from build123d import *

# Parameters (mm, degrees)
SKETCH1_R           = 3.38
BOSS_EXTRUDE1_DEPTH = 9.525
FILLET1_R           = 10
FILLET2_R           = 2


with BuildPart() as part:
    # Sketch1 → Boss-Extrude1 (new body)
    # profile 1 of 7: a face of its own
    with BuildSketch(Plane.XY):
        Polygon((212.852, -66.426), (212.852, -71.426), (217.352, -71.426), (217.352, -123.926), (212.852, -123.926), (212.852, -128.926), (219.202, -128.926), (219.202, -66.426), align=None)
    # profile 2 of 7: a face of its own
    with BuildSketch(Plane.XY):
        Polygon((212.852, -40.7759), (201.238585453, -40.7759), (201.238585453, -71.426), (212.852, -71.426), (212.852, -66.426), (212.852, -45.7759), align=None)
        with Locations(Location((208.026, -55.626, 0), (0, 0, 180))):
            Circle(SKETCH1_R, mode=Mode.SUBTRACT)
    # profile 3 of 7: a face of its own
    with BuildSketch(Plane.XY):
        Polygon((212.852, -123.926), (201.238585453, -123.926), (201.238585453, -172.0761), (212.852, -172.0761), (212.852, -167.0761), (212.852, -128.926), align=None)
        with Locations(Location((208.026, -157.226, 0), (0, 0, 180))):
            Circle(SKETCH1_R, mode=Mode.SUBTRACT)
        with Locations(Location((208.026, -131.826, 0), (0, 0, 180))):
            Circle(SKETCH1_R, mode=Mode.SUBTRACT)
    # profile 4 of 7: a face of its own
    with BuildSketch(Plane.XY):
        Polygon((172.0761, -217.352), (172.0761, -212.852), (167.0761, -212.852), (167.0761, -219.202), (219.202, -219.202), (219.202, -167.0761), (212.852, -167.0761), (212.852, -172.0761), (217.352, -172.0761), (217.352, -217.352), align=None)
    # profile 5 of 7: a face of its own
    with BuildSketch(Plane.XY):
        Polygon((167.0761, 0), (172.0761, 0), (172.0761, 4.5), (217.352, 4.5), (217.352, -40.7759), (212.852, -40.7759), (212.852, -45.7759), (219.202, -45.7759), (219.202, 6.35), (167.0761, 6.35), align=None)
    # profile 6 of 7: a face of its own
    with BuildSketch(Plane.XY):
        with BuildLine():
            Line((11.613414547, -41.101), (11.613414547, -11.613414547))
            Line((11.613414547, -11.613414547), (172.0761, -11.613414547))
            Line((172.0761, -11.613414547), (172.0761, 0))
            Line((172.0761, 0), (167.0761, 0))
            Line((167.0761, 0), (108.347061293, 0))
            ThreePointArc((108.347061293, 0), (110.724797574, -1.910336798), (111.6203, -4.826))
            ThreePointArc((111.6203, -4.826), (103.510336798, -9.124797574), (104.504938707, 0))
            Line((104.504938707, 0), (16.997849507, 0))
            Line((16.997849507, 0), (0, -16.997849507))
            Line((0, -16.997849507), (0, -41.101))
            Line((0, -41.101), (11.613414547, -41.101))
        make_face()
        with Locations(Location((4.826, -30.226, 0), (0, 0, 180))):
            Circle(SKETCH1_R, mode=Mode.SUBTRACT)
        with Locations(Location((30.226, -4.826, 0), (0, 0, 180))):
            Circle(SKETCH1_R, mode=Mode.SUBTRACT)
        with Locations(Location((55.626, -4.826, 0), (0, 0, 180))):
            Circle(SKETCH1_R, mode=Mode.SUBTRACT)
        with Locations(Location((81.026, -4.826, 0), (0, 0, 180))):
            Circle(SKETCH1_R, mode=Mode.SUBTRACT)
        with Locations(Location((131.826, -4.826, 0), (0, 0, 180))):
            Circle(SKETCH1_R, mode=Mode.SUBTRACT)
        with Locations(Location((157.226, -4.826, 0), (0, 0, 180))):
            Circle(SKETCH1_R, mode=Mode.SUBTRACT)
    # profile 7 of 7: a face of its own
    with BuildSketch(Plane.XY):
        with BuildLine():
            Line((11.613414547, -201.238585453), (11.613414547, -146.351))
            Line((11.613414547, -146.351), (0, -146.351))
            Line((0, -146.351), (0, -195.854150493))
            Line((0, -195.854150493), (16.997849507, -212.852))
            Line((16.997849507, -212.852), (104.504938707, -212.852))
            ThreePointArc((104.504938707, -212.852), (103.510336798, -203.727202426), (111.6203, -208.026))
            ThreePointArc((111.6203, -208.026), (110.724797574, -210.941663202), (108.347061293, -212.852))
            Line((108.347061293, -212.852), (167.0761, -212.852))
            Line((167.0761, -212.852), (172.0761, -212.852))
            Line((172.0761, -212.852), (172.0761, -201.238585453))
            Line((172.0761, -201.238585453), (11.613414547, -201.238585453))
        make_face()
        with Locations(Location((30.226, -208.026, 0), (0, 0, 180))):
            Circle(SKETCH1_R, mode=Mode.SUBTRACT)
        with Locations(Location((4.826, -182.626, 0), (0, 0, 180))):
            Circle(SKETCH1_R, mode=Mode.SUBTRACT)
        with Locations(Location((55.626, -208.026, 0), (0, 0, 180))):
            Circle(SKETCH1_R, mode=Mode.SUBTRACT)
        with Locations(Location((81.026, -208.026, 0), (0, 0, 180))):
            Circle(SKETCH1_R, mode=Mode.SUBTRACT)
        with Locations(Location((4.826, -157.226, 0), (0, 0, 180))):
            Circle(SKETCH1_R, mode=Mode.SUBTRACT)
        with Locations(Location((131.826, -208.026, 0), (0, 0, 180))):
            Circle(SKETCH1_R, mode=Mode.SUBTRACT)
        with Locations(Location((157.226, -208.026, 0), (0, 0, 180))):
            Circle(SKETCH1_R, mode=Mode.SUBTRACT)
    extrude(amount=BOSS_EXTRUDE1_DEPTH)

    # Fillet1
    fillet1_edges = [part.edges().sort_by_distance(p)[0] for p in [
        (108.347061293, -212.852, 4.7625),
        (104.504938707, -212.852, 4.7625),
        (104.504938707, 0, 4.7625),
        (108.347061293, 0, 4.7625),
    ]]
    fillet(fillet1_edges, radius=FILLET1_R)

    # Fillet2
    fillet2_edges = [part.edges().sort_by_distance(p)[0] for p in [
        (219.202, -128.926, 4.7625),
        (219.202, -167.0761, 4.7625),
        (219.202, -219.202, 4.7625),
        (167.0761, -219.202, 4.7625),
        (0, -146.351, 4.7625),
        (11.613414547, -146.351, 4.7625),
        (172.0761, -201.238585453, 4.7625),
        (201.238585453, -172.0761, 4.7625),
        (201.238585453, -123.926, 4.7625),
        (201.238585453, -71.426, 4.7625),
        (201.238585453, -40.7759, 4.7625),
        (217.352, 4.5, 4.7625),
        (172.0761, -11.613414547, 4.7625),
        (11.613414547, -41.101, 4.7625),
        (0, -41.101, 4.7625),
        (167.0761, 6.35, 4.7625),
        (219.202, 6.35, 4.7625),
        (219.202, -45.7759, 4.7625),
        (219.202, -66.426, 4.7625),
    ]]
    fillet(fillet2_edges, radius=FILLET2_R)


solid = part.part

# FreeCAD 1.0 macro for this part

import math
import FreeCAD as App
import Part
import Sketcher

V = App.Vector


def edges_at(feature, points):
    """Names of the edges that pass closest to the given points."""
    edges = feature.Shape.Edges
    near = lambda p: min(range(len(edges)), key=lambda i: edges[i].distToShape(Part.Vertex(*p))[0])
    return sorted({f"Edge{near(p) + 1}" for p in points})

doc = App.newDocument("Part")
body = doc.addObject("PartDesign::Body", "Body")

# Sketch on XY plane
sketch1 = body.newObject("Sketcher::SketchObject", "Sketch")
sketch1.AttachmentSupport = (doc.getObject("XY_Plane"), [""])
sketch1.MapMode = "FlatFace"
sketch1.addGeometry([
    Part.LineSegment(V(217.4, -71.4, 0), V(217.4, -123.9, 0)),  # 0
    Part.LineSegment(V(217.4, -123.9, 0), V(201.2, -123.9, 0)),  # 1
    Part.LineSegment(V(201.2, -123.9, 0), V(201.2, -172.1, 0)),  # 2
    Part.LineSegment(V(201.2, -172.1, 0), V(217.4, -172.1, 0)),  # 3
    Part.LineSegment(V(217.4, -172.1, 0), V(217.4, -217.4, 0)),  # 4
    Part.LineSegment(V(217.4, -217.4, 0), V(172.1, -217.4, 0)),  # 5
    Part.LineSegment(V(172.1, -217.4, 0), V(172.1, -201.2, 0)),  # 6
    Part.LineSegment(V(172.1, -201.2, 0), V(11.6, -201.2, 0)),  # 7
    Part.LineSegment(V(11.6, -201.2, 0), V(11.6, -146.4, 0)),  # 8
    Part.LineSegment(V(11.6, -146.4, 0), V(0, -146.4, 0)),  # 9
    Part.LineSegment(V(0, -146.4, 0), V(0, -195.9, 0)),  # 10
    Part.LineSegment(V(0, -195.9, 0), V(17, -212.9, 0)),  # 11
    Part.LineSegment(V(17, -212.9, 0), V(104.5, -212.9, 0)),  # 12
    Part.ArcOfCircle(Part.Circle(V(106.4, -208, 0), V(0, 0, 1), 5.2), math.radians(0), math.radians(248)),  # 13
    Part.ArcOfCircle(Part.Circle(V(106.4, -208, 0), V(0, 0, 1), 5.2), math.radians(-68), math.radians(0)),  # 14
    Part.LineSegment(V(108.3, -212.9, 0), V(167.1, -212.9, 0)),  # 15
    Part.LineSegment(V(167.1, -212.9, 0), V(167.1, -219.2, 0)),  # 16
    Part.LineSegment(V(167.1, -219.2, 0), V(219.2, -219.2, 0)),  # 17
    Part.LineSegment(V(219.2, -219.2, 0), V(219.2, -167.1, 0)),  # 18
    Part.LineSegment(V(219.2, -167.1, 0), V(212.9, -167.1, 0)),  # 19
    Part.LineSegment(V(212.9, -167.1, 0), V(212.9, -128.9, 0)),  # 20
    Part.LineSegment(V(212.9, -128.9, 0), V(219.2, -128.9, 0)),  # 21
    Part.LineSegment(V(219.2, -128.9, 0), V(219.2, -66.4, 0)),  # 22
    Part.LineSegment(V(219.2, -66.4, 0), V(212.9, -66.4, 0)),  # 23
    Part.LineSegment(V(212.9, -66.4, 0), V(212.9, -45.8, 0)),  # 24
    Part.LineSegment(V(212.9, -45.8, 0), V(219.2, -45.8, 0)),  # 25
    Part.LineSegment(V(219.2, -45.8, 0), V(219.2, 6.3, 0)),  # 26
    Part.LineSegment(V(219.2, 6.3, 0), V(167.1, 6.3, 0)),  # 27
    Part.LineSegment(V(167.1, 6.3, 0), V(167.1, 0, 0)),  # 28
    Part.LineSegment(V(167.1, 0, 0), V(108.3, 0, 0)),  # 29
    Part.ArcOfCircle(Part.Circle(V(106.4, -4.8, 0), V(0, 0, 1), 5.2), math.radians(0), math.radians(68)),  # 30
    Part.ArcOfCircle(Part.Circle(V(106.4, -4.8, 0), V(0, 0, 1), 5.2), math.radians(112), math.radians(360)),  # 31
    Part.LineSegment(V(104.5, 0, 0), V(17, 0, 0)),  # 32
    Part.LineSegment(V(17, 0, 0), V(0, -17, 0)),  # 33
    Part.LineSegment(V(0, -17, 0), V(0, -41.1, 0)),  # 34
    Part.LineSegment(V(0, -41.1, 0), V(11.6, -41.1, 0)),  # 35
    Part.LineSegment(V(11.6, -41.1, 0), V(11.6, -11.6, 0)),  # 36
    Part.LineSegment(V(11.6, -11.6, 0), V(172.1, -11.6, 0)),  # 37
    Part.LineSegment(V(172.1, -11.6, 0), V(172.1, 4.5, 0)),  # 38
    Part.LineSegment(V(172.1, 4.5, 0), V(217.4, 4.5, 0)),  # 39
    Part.LineSegment(V(217.4, 4.5, 0), V(217.4, -40.8, 0)),  # 40
    Part.LineSegment(V(217.4, -40.8, 0), V(201.2, -40.8, 0)),  # 41
    Part.LineSegment(V(201.2, -40.8, 0), V(201.2, -71.4, 0)),  # 42
    Part.LineSegment(V(201.2, -71.4, 0), V(217.4, -71.4, 0)),  # 43
    Part.Circle(V(208, -55.6, 0), V(0, 0, 1), 3.4),  # 44
    Part.Circle(V(208, -131.8, 0), V(0, 0, 1), 3.4),  # 45
    Part.Circle(V(208, -157.2, 0), V(0, 0, 1), 3.4),  # 46
    Part.Circle(V(157.2, -4.8, 0), V(0, 0, 1), 3.4),  # 47
    Part.Circle(V(4.8, -30.2, 0), V(0, 0, 1), 3.4),  # 48
    Part.Circle(V(30.2, -4.8, 0), V(0, 0, 1), 3.4),  # 49
    Part.Circle(V(55.6, -4.8, 0), V(0, 0, 1), 3.4),  # 50
    Part.Circle(V(81, -4.8, 0), V(0, 0, 1), 3.4),  # 51
    Part.Circle(V(131.8, -4.8, 0), V(0, 0, 1), 3.4),  # 52
    Part.Circle(V(4.8, -157.2, 0), V(0, 0, 1), 3.4),  # 53
    Part.Circle(V(30.2, -208, 0), V(0, 0, 1), 3.4),  # 54
    Part.Circle(V(55.6, -208, 0), V(0, 0, 1), 3.4),  # 55
    Part.Circle(V(81, -208, 0), V(0, 0, 1), 3.4),  # 56
    Part.Circle(V(131.8, -208, 0), V(0, 0, 1), 3.4),  # 57
    Part.Circle(V(157.2, -208, 0), V(0, 0, 1), 3.4),  # 58
    Part.Circle(V(4.8, -182.6, 0), V(0, 0, 1), 3.4),  # 59
], False)
sketch1.addConstraint([
    Sketcher.Constraint("Coincident", 0, 2, 1, 1),
    Sketcher.Constraint("Coincident", 1, 2, 2, 1),
    Sketcher.Constraint("Coincident", 2, 2, 3, 1),
    Sketcher.Constraint("Coincident", 3, 2, 4, 1),
    Sketcher.Constraint("Coincident", 4, 2, 5, 1),
    Sketcher.Constraint("Coincident", 5, 2, 6, 1),
    Sketcher.Constraint("Coincident", 6, 2, 7, 1),
    Sketcher.Constraint("Coincident", 7, 2, 8, 1),
    Sketcher.Constraint("Coincident", 8, 2, 9, 1),
    Sketcher.Constraint("Coincident", 9, 2, 10, 1),
    Sketcher.Constraint("Coincident", 10, 2, 11, 1),
    Sketcher.Constraint("Coincident", 11, 2, 12, 1),
    Sketcher.Constraint("Coincident", 12, 2, 13, 2),
    Sketcher.Constraint("Tangent", 13, 1, 14, 2),
    Sketcher.Constraint("Coincident", 14, 1, 15, 1),
    Sketcher.Constraint("Coincident", 15, 2, 16, 1),
    Sketcher.Constraint("Coincident", 16, 2, 17, 1),
    Sketcher.Constraint("Coincident", 17, 2, 18, 1),
    Sketcher.Constraint("Coincident", 18, 2, 19, 1),
    Sketcher.Constraint("Coincident", 19, 2, 20, 1),
    Sketcher.Constraint("Coincident", 20, 2, 21, 1),
    Sketcher.Constraint("Coincident", 21, 2, 22, 1),
    Sketcher.Constraint("Coincident", 22, 2, 23, 1),
    Sketcher.Constraint("Coincident", 23, 2, 24, 1),
    Sketcher.Constraint("Coincident", 24, 2, 25, 1),
    Sketcher.Constraint("Coincident", 25, 2, 26, 1),
    Sketcher.Constraint("Coincident", 26, 2, 27, 1),
    Sketcher.Constraint("Coincident", 27, 2, 28, 1),
    Sketcher.Constraint("Coincident", 28, 2, 29, 1),
    Sketcher.Constraint("Coincident", 29, 2, 30, 2),
    Sketcher.Constraint("Tangent", 30, 1, 31, 2),
    Sketcher.Constraint("Coincident", 31, 1, 32, 1),
    Sketcher.Constraint("Coincident", 32, 2, 33, 1),
    Sketcher.Constraint("Coincident", 33, 2, 34, 1),
    Sketcher.Constraint("Coincident", 34, 2, 35, 1),
    Sketcher.Constraint("Coincident", 35, 2, 36, 1),
    Sketcher.Constraint("Coincident", 36, 2, 37, 1),
    Sketcher.Constraint("Coincident", 37, 2, 38, 1),
    Sketcher.Constraint("Coincident", 38, 2, 39, 1),
    Sketcher.Constraint("Coincident", 39, 2, 40, 1),
    Sketcher.Constraint("Coincident", 40, 2, 41, 1),
    Sketcher.Constraint("Coincident", 41, 2, 42, 1),
    Sketcher.Constraint("Coincident", 42, 2, 43, 1),
    Sketcher.Constraint("Coincident", 43, 2, 0, 1),
    Sketcher.Constraint("Vertical", 0),
    Sketcher.Constraint("Horizontal", 1),
    Sketcher.Constraint("Vertical", 2),
    Sketcher.Constraint("Horizontal", 3),
    Sketcher.Constraint("Vertical", 4),
    Sketcher.Constraint("Horizontal", 5),
    Sketcher.Constraint("Vertical", 6),
    Sketcher.Constraint("Horizontal", 7),
    Sketcher.Constraint("Vertical", 8),
    Sketcher.Constraint("Horizontal", 9),
    Sketcher.Constraint("Vertical", 10),
    Sketcher.Constraint("Horizontal", 12),
    Sketcher.Constraint("Horizontal", 15),
    Sketcher.Constraint("Vertical", 16),
    Sketcher.Constraint("Horizontal", 17),
    Sketcher.Constraint("Vertical", 18),
    Sketcher.Constraint("Horizontal", 19),
    Sketcher.Constraint("Vertical", 20),
    Sketcher.Constraint("Horizontal", 21),
    Sketcher.Constraint("Vertical", 22),
    Sketcher.Constraint("Horizontal", 23),
    Sketcher.Constraint("Vertical", 24),
    Sketcher.Constraint("Horizontal", 25),
    Sketcher.Constraint("Vertical", 26),
    Sketcher.Constraint("Horizontal", 27),
    Sketcher.Constraint("Vertical", 28),
    Sketcher.Constraint("Horizontal", 29),
    Sketcher.Constraint("Horizontal", 32),
    Sketcher.Constraint("Vertical", 34),
    Sketcher.Constraint("Horizontal", 35),
    Sketcher.Constraint("Vertical", 36),
    Sketcher.Constraint("Horizontal", 37),
    Sketcher.Constraint("Vertical", 38),
    Sketcher.Constraint("Horizontal", 39),
    Sketcher.Constraint("Vertical", 40),
    Sketcher.Constraint("Horizontal", 41),
    Sketcher.Constraint("Vertical", 42),
    Sketcher.Constraint("Horizontal", 43),
    Sketcher.Constraint("Equal", 13, 14),
    Sketcher.Constraint("Equal", 14, 30),
    Sketcher.Constraint("Equal", 30, 31),
    Sketcher.Constraint("Equal", 44, 45),
    Sketcher.Constraint("Equal", 45, 46),
    Sketcher.Constraint("Equal", 46, 47),
    Sketcher.Constraint("Equal", 47, 48),
    Sketcher.Constraint("Equal", 48, 49),
    Sketcher.Constraint("Equal", 49, 50),
    Sketcher.Constraint("Equal", 50, 51),
    Sketcher.Constraint("Equal", 51, 52),
    Sketcher.Constraint("Equal", 52, 53),
    Sketcher.Constraint("Equal", 53, 54),
    Sketcher.Constraint("Equal", 54, 55),
    Sketcher.Constraint("Equal", 55, 56),
    Sketcher.Constraint("Equal", 56, 57),
    Sketcher.Constraint("Equal", 57, 58),
    Sketcher.Constraint("Equal", 58, 59),
    Sketcher.Constraint("PointOnObject", 9, 2, -2),
    Sketcher.Constraint("PointOnObject", 28, 2, -1),
    Sketcher.Constraint("PointOnObject", 31, 1, -1),
    Sketcher.Constraint("PointOnObject", 33, 2, -2),
    Sketcher.Constraint("Perpendicular", 11, 33),
    Sketcher.Constraint("Horizontal", 31, 3, 47, 3),
    Sketcher.Constraint("Horizontal", 47, 3, 49, 3),
    Sketcher.Constraint("Horizontal", 49, 3, 50, 3),
    Sketcher.Constraint("Horizontal", 50, 3, 51, 3),
    Sketcher.Constraint("Horizontal", 51, 3, 52, 3),
    Sketcher.Constraint("Horizontal", 46, 3, 53, 3),
    Sketcher.Constraint("Horizontal", 14, 3, 54, 3),
    Sketcher.Constraint("Horizontal", 54, 3, 55, 3),
    Sketcher.Constraint("Horizontal", 55, 3, 56, 3),
    Sketcher.Constraint("Horizontal", 56, 3, 57, 3),
    Sketcher.Constraint("Horizontal", 57, 3, 58, 3),
    Sketcher.Constraint("Horizontal", 58, 3, 13, 1),
    Sketcher.Constraint("Horizontal", 12, 2, 14, 1),
    Sketcher.Constraint("Horizontal", 52, 3, 30, 1),
    Sketcher.Constraint("Vertical", 14, 3, 30, 3),
    Sketcher.Constraint("Vertical", 44, 3, 45, 3),
    Sketcher.Constraint("Vertical", 45, 3, 46, 3),
    Sketcher.Constraint("Vertical", 48, 3, 53, 3),
    Sketcher.Constraint("Vertical", 49, 3, 54, 3),
    Sketcher.Constraint("Vertical", 50, 3, 55, 3),
    Sketcher.Constraint("Vertical", 51, 3, 56, 3),
    Sketcher.Constraint("Vertical", 52, 3, 57, 3),
    Sketcher.Constraint("Vertical", 47, 3, 58, 3),
    Sketcher.Constraint("Vertical", 53, 3, 59, 3),
    Sketcher.Constraint("Vertical", 0, 2, 3, 2),
    Sketcher.Constraint("Vertical", 18, 2, 21, 2),
    Sketcher.Constraint("Vertical", 20, 2, 23, 2),
    Sketcher.Constraint("Vertical", 22, 2, 25, 2),
    Sketcher.Constraint("Vertical", 16, 2, 27, 2),
    Sketcher.Constraint("Vertical", 14, 1, 29, 2),
    Sketcher.Constraint("Vertical", 11, 2, 32, 2),
    Sketcher.Constraint("Vertical", 8, 2, 35, 2),
    Sketcher.Constraint("Vertical", 6, 2, 37, 2),
    Sketcher.Constraint("Vertical", 4, 2, 39, 2),
    Sketcher.Constraint("Vertical", 2, 2, 41, 2),
    Sketcher.Constraint("Equal", 39, 4),
    Sketcher.Constraint("Equal", 43, 6),
    Sketcher.Constraint("Equal", 25, 16),
    Sketcher.Constraint("Equal", 27, 18),
    Sketcher.Constraint("Equal", 18, 26),
    Sketcher.Constraint("Equal", 16, 28),
    Sketcher.Constraint("Equal", 6, 38),
    Sketcher.Constraint("Equal", 4, 40),
    Sketcher.Constraint("Equal", 11, 33),
    Sketcher.Constraint("Diameter", 44, 6.76),
    Sketcher.Constraint("DistanceY", 0, 2, 0, 1, 52.5),
    Sketcher.Constraint("DistanceY", 22, 1, 22, 2, 62.5),
    Sketcher.Constraint("DistanceX", 19, 2, 19, 1, 6.35),
    Sketcher.Constraint("DistanceY", -1, 1, 38, 2, 4.5),
    Sketcher.Constraint("Radius", 13, 5.1943),
    Sketcher.Constraint("DistanceX", 5, 2, 5, 1, 45.2759),
    Sketcher.Constraint("DistanceX", 17, 1, 17, 2, 52.1259),
    Sketcher.Constraint("DistanceY", 2, 2, 2, 1, 48.1501),
    Sketcher.Constraint("DistanceY", 20, 1, 20, 2, 38.1501),
    Sketcher.Constraint("DistanceY", 24, 1, 24, 2, 20.6501),
    Sketcher.Constraint("DistanceY", 42, 2, 42, 1, 30.6501),
    Sketcher.Constraint("DistanceX", -1, 1, 13, 3, 106.426),
    Sketcher.Constraint("DistanceY", 13, 3, -1, 1, 208.026),
    Sketcher.Constraint("DistanceX", -1, 1, 44, 3, 208.026),
    Sketcher.Constraint("DistanceY", 44, 3, -1, 1, 55.626),
    Sketcher.Constraint("DistanceY", 45, 3, -1, 1, 131.826),
    Sketcher.Constraint("DistanceY", 46, 3, -1, 1, 157.226),
    Sketcher.Constraint("DistanceX", -1, 1, 47, 3, 157.226),
    Sketcher.Constraint("DistanceX", -1, 1, 48, 3, 4.826),
    Sketcher.Constraint("DistanceY", 48, 3, -1, 1, 30.226),
    Sketcher.Constraint("DistanceX", -1, 1, 49, 3, 30.226),
    Sketcher.Constraint("DistanceX", -1, 1, 50, 3, 55.626),
    Sketcher.Constraint("DistanceX", -1, 1, 51, 3, 81.026),
    Sketcher.Constraint("DistanceX", -1, 1, 52, 3, 131.826),
    Sketcher.Constraint("DistanceY", 59, 3, -1, 1, 182.626),
    Sketcher.Constraint("DistanceX", -1, 1, 0, 2, 217.352),
    Sketcher.Constraint("DistanceY", 8, 2, -1, 1, 146.351),
    Sketcher.Constraint("DistanceX", -1, 1, 17, 2, 219.202),
    Sketcher.Constraint("DistanceY", 34, 2, -1, 1, 41.101),
    Sketcher.Constraint("DistanceX", 12, 1, 12, 2, 87.507089),
    Sketcher.Constraint("DistanceX", 1, 2, 1, 1, 16.113415),
    Sketcher.Constraint("DistanceX", 7, 2, 7, 1, 160.462685),
])
pad1 = body.newObject("PartDesign::Pad", "Pad")
pad1.Profile = sketch1
pad1.Length = 9.525
doc.recompute()

fillet = body.newObject("PartDesign::Fillet", "Fillet")
fillet.Base = (pad1, edges_at(pad1, [
    (108.347, -212.852, 4.763),
    (104.505, -212.852, 4.763),
    (104.505, 0, 4.763),
    (108.347, 0, 4.763),
]))
fillet.Radius = 10
doc.recompute()

fillet2 = body.newObject("PartDesign::Fillet", "Fillet001")
fillet2.Base = (fillet, edges_at(fillet, [
    (219.202, -128.926, 4.763),
    (219.202, -167.076, 4.763),
    (219.202, -219.202, 4.763),
    (167.076, -219.202, 4.763),
    (0, -146.351, 4.763),
    (11.613, -146.351, 4.763),
    (172.076, -201.239, 4.763),
    (201.239, -172.076, 4.763),
    (201.239, -123.926, 4.763),
    (201.239, -71.426, 4.763),
    (201.239, -40.776, 4.763),
    (217.352, 4.5, 4.763),
    (172.076, -11.613, 4.763),
    (11.613, -41.101, 4.763),
    (0, -41.101, 4.763),
    (167.076, 6.35, 4.763),
    (219.202, 6.35, 4.763),
    (219.202, -45.776, 4.763),
    (219.202, -66.426, 4.763),
]))
fillet2.Radius = 2

doc.recompute()
